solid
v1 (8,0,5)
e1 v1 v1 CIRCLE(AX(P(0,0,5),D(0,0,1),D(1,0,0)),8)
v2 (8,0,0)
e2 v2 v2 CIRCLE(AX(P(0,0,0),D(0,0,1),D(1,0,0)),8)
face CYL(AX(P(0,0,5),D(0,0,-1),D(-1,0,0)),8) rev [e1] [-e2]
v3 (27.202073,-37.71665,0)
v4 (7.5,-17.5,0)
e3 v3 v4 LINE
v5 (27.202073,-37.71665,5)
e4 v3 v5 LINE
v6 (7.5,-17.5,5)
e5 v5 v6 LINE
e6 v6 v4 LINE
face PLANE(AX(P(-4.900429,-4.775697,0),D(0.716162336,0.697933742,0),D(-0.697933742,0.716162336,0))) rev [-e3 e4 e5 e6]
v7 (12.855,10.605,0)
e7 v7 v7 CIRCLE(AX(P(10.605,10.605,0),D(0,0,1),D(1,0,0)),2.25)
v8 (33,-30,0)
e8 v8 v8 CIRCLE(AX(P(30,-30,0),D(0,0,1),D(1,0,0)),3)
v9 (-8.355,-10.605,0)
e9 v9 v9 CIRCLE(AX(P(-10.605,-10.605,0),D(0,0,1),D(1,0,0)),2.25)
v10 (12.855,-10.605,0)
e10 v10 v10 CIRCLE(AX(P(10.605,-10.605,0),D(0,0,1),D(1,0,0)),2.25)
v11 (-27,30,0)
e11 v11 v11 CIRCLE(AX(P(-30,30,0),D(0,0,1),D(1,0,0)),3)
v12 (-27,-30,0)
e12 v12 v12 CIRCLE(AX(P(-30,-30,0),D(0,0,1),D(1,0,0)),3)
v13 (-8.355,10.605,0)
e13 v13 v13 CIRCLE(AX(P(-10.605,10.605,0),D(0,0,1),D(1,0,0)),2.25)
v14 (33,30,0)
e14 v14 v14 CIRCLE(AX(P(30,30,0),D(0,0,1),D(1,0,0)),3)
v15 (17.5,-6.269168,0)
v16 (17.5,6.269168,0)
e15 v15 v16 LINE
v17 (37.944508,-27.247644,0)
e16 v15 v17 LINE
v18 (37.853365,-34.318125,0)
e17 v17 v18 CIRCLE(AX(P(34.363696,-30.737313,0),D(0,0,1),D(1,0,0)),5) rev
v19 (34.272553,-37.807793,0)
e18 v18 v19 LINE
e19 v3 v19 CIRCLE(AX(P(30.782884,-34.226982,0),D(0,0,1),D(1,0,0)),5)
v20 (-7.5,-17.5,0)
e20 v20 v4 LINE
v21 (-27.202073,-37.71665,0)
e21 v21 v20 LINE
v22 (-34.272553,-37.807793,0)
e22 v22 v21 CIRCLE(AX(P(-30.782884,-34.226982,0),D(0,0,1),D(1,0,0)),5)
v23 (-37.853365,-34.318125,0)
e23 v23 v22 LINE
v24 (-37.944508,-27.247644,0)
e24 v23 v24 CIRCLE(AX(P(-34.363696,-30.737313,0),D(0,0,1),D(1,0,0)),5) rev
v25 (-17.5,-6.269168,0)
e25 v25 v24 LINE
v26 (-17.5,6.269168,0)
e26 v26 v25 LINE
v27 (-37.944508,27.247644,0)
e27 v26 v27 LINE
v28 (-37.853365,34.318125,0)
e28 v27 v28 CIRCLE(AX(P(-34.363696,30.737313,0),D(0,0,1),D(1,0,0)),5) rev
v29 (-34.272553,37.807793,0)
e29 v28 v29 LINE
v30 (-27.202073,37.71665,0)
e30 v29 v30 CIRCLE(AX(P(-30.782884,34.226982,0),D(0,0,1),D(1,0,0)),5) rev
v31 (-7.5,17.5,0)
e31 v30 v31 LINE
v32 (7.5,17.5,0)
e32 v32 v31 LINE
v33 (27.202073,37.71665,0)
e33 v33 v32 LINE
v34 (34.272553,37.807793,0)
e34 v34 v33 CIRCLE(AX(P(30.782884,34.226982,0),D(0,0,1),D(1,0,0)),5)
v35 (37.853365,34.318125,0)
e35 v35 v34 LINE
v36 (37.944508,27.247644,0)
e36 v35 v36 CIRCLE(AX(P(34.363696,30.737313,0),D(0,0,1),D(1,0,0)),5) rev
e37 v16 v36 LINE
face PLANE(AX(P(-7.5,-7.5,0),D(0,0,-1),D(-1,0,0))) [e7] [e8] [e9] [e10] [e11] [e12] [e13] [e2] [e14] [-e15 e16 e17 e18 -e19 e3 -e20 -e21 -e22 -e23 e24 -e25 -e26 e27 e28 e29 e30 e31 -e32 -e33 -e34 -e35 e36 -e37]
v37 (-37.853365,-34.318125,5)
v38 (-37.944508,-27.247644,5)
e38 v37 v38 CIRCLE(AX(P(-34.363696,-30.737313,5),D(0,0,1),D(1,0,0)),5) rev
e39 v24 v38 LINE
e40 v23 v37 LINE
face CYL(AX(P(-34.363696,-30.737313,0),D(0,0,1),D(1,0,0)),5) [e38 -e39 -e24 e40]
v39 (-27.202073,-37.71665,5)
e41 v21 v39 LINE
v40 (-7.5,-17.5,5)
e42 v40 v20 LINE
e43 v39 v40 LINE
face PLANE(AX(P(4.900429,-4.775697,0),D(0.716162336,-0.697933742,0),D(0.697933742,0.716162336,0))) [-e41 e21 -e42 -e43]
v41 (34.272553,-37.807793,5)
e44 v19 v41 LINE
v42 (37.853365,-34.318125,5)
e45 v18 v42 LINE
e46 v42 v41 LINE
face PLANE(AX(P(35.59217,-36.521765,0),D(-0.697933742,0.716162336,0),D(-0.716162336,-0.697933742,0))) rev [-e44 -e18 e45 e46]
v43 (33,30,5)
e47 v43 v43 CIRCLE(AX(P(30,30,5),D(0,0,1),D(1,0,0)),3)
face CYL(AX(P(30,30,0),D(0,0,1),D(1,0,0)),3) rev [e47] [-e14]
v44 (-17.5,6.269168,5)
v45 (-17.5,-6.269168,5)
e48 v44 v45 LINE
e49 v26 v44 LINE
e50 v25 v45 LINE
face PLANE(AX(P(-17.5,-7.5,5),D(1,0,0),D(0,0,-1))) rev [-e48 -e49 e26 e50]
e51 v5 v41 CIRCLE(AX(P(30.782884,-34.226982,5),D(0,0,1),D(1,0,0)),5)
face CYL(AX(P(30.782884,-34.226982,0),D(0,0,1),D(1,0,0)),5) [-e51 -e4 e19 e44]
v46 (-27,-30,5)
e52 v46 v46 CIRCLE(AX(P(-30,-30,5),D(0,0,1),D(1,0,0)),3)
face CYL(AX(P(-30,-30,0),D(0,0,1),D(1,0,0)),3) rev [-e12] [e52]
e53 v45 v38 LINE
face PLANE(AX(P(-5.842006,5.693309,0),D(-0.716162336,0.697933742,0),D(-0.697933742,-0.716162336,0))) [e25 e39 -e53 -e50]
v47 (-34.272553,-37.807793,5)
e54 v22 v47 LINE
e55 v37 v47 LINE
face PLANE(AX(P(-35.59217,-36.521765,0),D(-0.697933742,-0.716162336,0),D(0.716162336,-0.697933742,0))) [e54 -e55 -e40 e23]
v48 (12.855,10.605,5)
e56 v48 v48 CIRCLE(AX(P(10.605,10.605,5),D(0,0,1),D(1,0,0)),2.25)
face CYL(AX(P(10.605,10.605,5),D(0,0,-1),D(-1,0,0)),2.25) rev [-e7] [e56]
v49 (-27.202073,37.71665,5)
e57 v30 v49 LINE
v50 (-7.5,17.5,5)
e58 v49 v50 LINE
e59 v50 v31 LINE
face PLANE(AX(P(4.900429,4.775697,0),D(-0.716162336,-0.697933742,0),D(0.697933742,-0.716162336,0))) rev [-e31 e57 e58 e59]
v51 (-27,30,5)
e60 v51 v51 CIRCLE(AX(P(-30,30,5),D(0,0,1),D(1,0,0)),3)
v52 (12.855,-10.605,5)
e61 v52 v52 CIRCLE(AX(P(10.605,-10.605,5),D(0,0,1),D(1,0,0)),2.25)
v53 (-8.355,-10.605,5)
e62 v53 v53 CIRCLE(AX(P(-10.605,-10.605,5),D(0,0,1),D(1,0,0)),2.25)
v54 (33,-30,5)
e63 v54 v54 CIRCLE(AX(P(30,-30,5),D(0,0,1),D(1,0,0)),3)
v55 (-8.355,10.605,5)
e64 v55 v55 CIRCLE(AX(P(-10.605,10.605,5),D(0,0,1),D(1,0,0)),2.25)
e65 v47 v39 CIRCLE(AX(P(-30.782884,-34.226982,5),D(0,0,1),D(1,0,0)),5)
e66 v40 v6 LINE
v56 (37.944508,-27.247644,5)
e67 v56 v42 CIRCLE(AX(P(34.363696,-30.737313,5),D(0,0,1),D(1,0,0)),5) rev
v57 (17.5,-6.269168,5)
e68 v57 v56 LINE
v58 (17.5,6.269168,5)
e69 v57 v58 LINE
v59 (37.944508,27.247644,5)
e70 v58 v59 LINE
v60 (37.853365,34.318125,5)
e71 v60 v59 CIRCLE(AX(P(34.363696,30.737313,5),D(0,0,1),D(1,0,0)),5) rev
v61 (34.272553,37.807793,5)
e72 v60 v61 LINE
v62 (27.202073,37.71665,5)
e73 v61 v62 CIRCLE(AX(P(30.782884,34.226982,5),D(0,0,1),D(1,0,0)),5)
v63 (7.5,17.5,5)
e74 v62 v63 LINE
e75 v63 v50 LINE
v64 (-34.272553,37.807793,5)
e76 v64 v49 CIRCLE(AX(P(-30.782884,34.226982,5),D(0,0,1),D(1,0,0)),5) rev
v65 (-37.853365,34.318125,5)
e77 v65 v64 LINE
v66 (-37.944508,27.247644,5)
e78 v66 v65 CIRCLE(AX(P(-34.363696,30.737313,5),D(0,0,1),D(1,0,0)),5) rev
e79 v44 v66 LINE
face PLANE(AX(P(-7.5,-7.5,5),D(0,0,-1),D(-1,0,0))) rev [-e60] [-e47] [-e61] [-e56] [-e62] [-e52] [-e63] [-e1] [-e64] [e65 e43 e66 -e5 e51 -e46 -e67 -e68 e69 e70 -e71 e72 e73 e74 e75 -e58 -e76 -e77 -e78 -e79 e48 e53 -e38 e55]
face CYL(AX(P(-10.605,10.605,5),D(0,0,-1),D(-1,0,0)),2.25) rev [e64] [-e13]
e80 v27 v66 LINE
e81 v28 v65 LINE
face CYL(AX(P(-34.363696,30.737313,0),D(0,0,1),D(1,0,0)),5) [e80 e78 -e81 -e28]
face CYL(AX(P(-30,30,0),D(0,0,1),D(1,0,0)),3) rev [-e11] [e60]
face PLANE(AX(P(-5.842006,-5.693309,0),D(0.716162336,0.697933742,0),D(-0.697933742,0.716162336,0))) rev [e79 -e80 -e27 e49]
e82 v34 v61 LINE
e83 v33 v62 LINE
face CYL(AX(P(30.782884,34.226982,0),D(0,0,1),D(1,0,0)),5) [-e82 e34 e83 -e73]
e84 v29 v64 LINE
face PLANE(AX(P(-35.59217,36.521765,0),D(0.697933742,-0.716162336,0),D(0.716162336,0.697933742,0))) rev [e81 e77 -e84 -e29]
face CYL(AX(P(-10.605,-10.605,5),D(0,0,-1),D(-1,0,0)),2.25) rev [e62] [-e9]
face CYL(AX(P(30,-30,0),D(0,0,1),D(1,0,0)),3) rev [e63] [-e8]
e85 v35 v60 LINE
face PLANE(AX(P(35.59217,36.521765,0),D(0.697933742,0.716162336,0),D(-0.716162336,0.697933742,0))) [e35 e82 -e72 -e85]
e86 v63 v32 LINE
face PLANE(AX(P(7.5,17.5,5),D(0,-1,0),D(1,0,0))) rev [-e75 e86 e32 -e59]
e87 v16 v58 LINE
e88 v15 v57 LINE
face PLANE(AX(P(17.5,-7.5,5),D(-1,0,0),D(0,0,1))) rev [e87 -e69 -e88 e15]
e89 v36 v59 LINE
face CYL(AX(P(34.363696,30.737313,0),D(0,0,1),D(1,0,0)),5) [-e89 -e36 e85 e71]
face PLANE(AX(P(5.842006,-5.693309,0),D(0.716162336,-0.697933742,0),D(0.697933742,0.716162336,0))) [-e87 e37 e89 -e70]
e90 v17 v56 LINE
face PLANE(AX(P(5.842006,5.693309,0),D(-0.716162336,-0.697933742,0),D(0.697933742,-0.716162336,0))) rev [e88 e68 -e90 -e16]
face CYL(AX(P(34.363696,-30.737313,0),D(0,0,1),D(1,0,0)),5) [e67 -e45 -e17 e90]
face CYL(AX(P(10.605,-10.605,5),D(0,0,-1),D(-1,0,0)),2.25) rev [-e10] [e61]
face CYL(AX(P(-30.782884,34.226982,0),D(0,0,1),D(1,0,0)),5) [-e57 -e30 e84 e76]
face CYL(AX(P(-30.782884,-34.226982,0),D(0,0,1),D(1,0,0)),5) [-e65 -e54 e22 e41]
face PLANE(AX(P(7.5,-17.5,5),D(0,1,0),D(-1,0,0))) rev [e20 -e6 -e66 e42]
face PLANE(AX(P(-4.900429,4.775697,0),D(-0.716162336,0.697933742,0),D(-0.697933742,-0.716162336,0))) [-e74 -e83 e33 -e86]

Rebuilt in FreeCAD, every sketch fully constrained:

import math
import FreeCAD as App
import Part
import Sketcher
from FreeCAD import Vector

doc = App.newDocument("Part")
params = doc.addObject("Spreadsheet::Sheet", "Params")
for row, (alias, value) in enumerate([
    ("sketch1_diameter", "16 mm"),
    ("sketch1_radius", "10 mm"),
    ("sketch1_diameter2", "4.5 mm"),
    ("sketch1_width", "15 mm"),
    ("pad1_length", "5 mm"),
    ("sketch2_diameter", "6 mm"),
    ("sketch2_radius", "10 mm"),
    ("sketch2_radius2", "5 mm"),
    ("sketch2_length", "5 mm"),
    ("pad2_length", "5 mm"),
], start=1):
    params.set(f"A{row}", alias)
    params.set(f"B{row}", "=" + value)
    params.setAlias(f"B{row}", alias)

body = doc.addObject("PartDesign::Body", "Body")

# Sketch on XY plane
sketch1 = body.newObject("Sketcher::SketchObject", "Sketch")
sketch1.AttachmentSupport = (doc.getObject("XY_Plane"), [""])
sketch1.MapMode = "FlatFace"
sketch1.addGeometry([
    Part.LineSegment(Vector(-7.5, -17.5, 0), Vector(7.5, -17.5, 0)),  # 0
    Part.ArcOfCircle(Part.Circle(Vector(7.5, -7.5, 0), Vector(0, 0, 1), 10), math.radians(-90), math.radians(0)),  # 1
    Part.LineSegment(Vector(17.5, -7.5, 0), Vector(17.5, 7.5, 0)),  # 2
    Part.ArcOfCircle(Part.Circle(Vector(7.5, 7.5, 0), Vector(0, 0, 1), 10), math.radians(0), math.radians(90)),  # 3
    Part.LineSegment(Vector(7.5, 17.5, 0), Vector(-7.5, 17.5, 0)),  # 4
    Part.ArcOfCircle(Part.Circle(Vector(-7.5, 7.5, 0), Vector(0, 0, 1), 10), math.radians(90), math.radians(180)),  # 5
    Part.LineSegment(Vector(-17.5, 7.5, 0), Vector(-17.5, -7.5, 0)),  # 6
    Part.ArcOfCircle(Part.Circle(Vector(-7.5, -7.5, 0), Vector(0, 0, 1), 10), math.radians(180), math.radians(270)),  # 7
    Part.Circle(Vector(10.6, -10.6, 0), Vector(0, 0, 1), 2.2),  # 8
    Part.Circle(Vector(-10.6, -10.6, 0), Vector(0, 0, 1), 2.2),  # 9
    Part.Circle(Vector(10.6, 10.6, 0), Vector(0, 0, 1), 2.2),  # 10
    Part.Circle(Vector(0, 0, 0), Vector(0, 0, 1), 8),  # 11
    Part.Circle(Vector(-10.6, 10.6, 0), Vector(0, 0, 1), 2.2),  # 12
], False)
sketch1.addConstraint([
    Sketcher.Constraint("Tangent", 0, 2, 1, 1),
    Sketcher.Constraint("Tangent", 1, 2, 2, 1),
    Sketcher.Constraint("Tangent", 2, 2, 3, 1),
    Sketcher.Constraint("Tangent", 3, 2, 4, 1),
    Sketcher.Constraint("Tangent", 4, 2, 5, 1),
    Sketcher.Constraint("Tangent", 5, 2, 6, 1),
    Sketcher.Constraint("Tangent", 6, 2, 7, 1),
    Sketcher.Constraint("Tangent", 7, 2, 0, 1),
    Sketcher.Constraint("Horizontal", 0),
    Sketcher.Constraint("Vertical", 2),
    Sketcher.Constraint("Horizontal", 4),
    Sketcher.Constraint("Vertical", 6),
    Sketcher.Constraint("Coincident", 11, 3, -1, 1),
    Sketcher.Constraint("Equal", 1, 3),
    Sketcher.Constraint("Equal", 3, 5),
    Sketcher.Constraint("Equal", 5, 7),
    Sketcher.Constraint("Equal", 8, 9),
    Sketcher.Constraint("Equal", 9, 10),
    Sketcher.Constraint("Equal", 10, 12),
    Sketcher.Constraint("Symmetric", 1, 3, 5, 3, -1, 1),
    Sketcher.Constraint("Symmetric", 9, 3, 10, 3, -1, 1),
    Sketcher.Constraint("Symmetric", 8, 3, 12, 3, -1, 1),
    Sketcher.Constraint("Symmetric", 8, 3, 9, 3, -2),
    Sketcher.Constraint("Equal", 4, 2),
    Sketcher.Constraint("Diameter", 11, 16.0),
    Sketcher.Constraint("Radius", 1, 10.0),
    Sketcher.Constraint("Diameter", 8, 4.5),
    Sketcher.Constraint("DistanceX", 0, 1, 0, 2, 15.0),
    Sketcher.Constraint("DistanceX", 9, 3, 8, 3, 21.21),
    Sketcher.Constraint("DistanceY", 8, 3, 10, 3, 21.21),
])
sketch1.setExpression("Constraints[24]", "Params.sketch1_diameter")
sketch1.setExpression("Constraints[25]", "Params.sketch1_radius")
sketch1.setExpression("Constraints[26]", "Params.sketch1_diameter2")
sketch1.setExpression("Constraints[27]", "Params.sketch1_width")
pad1 = body.newObject("PartDesign::Pad", "Pad")
pad1.Profile = sketch1
pad1.setExpression("Length", "Params.pad1_length")

# Sketch on XY plane
sketch2 = body.newObject("Sketcher::SketchObject", "Sketch001")
sketch2.AttachmentSupport = (doc.getObject("XY_Plane"), [""])
sketch2.MapMode = "FlatFace"
sketch2.addGeometry([
    Part.LineSegment(Vector(-37.9, 27.2, 0), Vector(-17.5, 6.3, 0)),  # 0
    Part.LineSegment(Vector(-17.5, 6.3, 0), Vector(-17.5, 7.5, 0)),  # 1
    Part.ArcOfCircle(Part.Circle(Vector(-7.5, 7.5, 0), Vector(0, 0, 1), 10), math.radians(90), math.radians(180)),  # 2
    Part.LineSegment(Vector(-7.5, 17.5, 0), Vector(-27.2, 37.7, 0)),  # 3
    Part.ArcOfCircle(Part.Circle(Vector(-30.8, 34.2, 0), Vector(0, 0, 1), 5), math.radians(44), math.radians(134)),  # 4
    Part.LineSegment(Vector(-34.3, 37.8, 0), Vector(-37.9, 34.3, 0)),  # 5
    Part.ArcOfCircle(Part.Circle(Vector(-34.4, 30.7, 0), Vector(0, 0, 1), 5), math.radians(134), math.radians(224)),  # 6
    Part.Circle(Vector(-30, 30, 0), Vector(0, 0, 1), 3),  # 7
    Part.ArcOfCircle(Part.Circle(Vector(34.4, 30.7, 0), Vector(0, 0, 1), 5), math.radians(-44), math.radians(46)),  # 8
    Part.LineSegment(Vector(37.9, 34.3, 0), Vector(34.3, 37.8, 0)),  # 9
    Part.ArcOfCircle(Part.Circle(Vector(30.8, 34.2, 0), Vector(0, 0, 1), 5), math.radians(46), math.radians(136)),  # 10
    Part.LineSegment(Vector(27.2, 37.7, 0), Vector(7.5, 17.5, 0)),  # 11
    Part.ArcOfCircle(Part.Circle(Vector(7.5, 7.5, 0), Vector(0, 0, 1), 10), math.radians(0), math.radians(90)),  # 12
    Part.LineSegment(Vector(17.5, 7.5, 0), Vector(17.5, 6.3, 0)),  # 13
    Part.LineSegment(Vector(17.5, 6.3, 0), Vector(37.9, 27.2, 0)),  # 14
    Part.Circle(Vector(30, 30, 0), Vector(0, 0, 1), 3),  # 15
    Part.LineSegment(Vector(37.9, -27.2, 0), Vector(17.5, -6.3, 0)),  # 16
    Part.LineSegment(Vector(17.5, -6.3, 0), Vector(17.5, -7.5, 0)),  # 17
    Part.ArcOfCircle(Part.Circle(Vector(7.5, -7.5, 0), Vector(0, 0, 1), 10), math.radians(-90), math.radians(0)),  # 18
    Part.LineSegment(Vector(7.5, -17.5, 0), Vector(27.2, -37.7, 0)),  # 19
    Part.ArcOfCircle(Part.Circle(Vector(30.8, -34.2, 0), Vector(0, 0, 1), 5), math.radians(-136), math.radians(-46)),  # 20
    Part.LineSegment(Vector(34.3, -37.8, 0), Vector(37.9, -34.3, 0)),  # 21
    Part.ArcOfCircle(Part.Circle(Vector(34.4, -30.7, 0), Vector(0, 0, 1), 5), math.radians(-46), math.radians(44)),  # 22
    Part.Circle(Vector(30, -30, 0), Vector(0, 0, 1), 3),  # 23
    Part.LineSegment(Vector(-17.5, -7.5, 0), Vector(-17.5, -6.3, 0)),  # 24
    Part.LineSegment(Vector(-17.5, -6.3, 0), Vector(-37.9, -27.2, 0)),  # 25
    Part.ArcOfCircle(Part.Circle(Vector(-34.4, -30.7, 0), Vector(0, 0, 1), 5), math.radians(136), math.radians(226)),  # 26
    Part.LineSegment(Vector(-37.9, -34.3, 0), Vector(-34.3, -37.8, 0)),  # 27
    Part.ArcOfCircle(Part.Circle(Vector(-30.8, -34.2, 0), Vector(0, 0, 1), 5), math.radians(-134), math.radians(-44)),  # 28
    Part.LineSegment(Vector(-27.2, -37.7, 0), Vector(-7.5, -17.5, 0)),  # 29
    Part.ArcOfCircle(Part.Circle(Vector(-7.5, -7.5, 0), Vector(0, 0, 1), 10), math.radians(180), math.radians(270)),  # 30
    Part.Circle(Vector(-30, -30, 0), Vector(0, 0, 1), 3),  # 31
], False)
sketch2.addConstraint([
    Sketcher.Constraint("Coincident", 0, 2, 1, 1),
    Sketcher.Constraint("Tangent", 1, 2, 2, 2),
    Sketcher.Constraint("Coincident", 2, 1, 3, 1),
    Sketcher.Constraint("Tangent", 3, 2, 4, 1),
    Sketcher.Constraint("Tangent", 4, 2, 5, 1),
    Sketcher.Constraint("Tangent", 5, 2, 6, 1),
    Sketcher.Constraint("Tangent", 6, 2, 0, 1),
    Sketcher.Constraint("Tangent", 8, 2, 9, 1),
    Sketcher.Constraint("Tangent", 9, 2, 10, 1),
    Sketcher.Constraint("Tangent", 10, 2, 11, 1),
    Sketcher.Constraint("Coincident", 11, 2, 12, 2),
    Sketcher.Constraint("Tangent", 12, 1, 13, 1),
    Sketcher.Constraint("Coincident", 13, 2, 14, 1),
    Sketcher.Constraint("Tangent", 14, 2, 8, 1),
    Sketcher.Constraint("Coincident", 16, 2, 17, 1),
    Sketcher.Constraint("Tangent", 17, 2, 18, 2),
    Sketcher.Constraint("Coincident", 18, 1, 19, 1),
    Sketcher.Constraint("Tangent", 19, 2, 20, 1),
    Sketcher.Constraint("Tangent", 20, 2, 21, 1),
    Sketcher.Constraint("Tangent", 21, 2, 22, 1),
    Sketcher.Constraint("Tangent", 22, 2, 16, 1),
    Sketcher.Constraint("Coincident", 24, 2, 25, 1),
    Sketcher.Constraint("Tangent", 25, 2, 26, 1),
    Sketcher.Constraint("Tangent", 26, 2, 27, 1),
    Sketcher.Constraint("Tangent", 27, 2, 28, 1),
    Sketcher.Constraint("Tangent", 28, 2, 29, 1),
    Sketcher.Constraint("Coincident", 29, 2, 30, 2),
    Sketcher.Constraint("Tangent", 30, 1, 24, 1),
    Sketcher.Constraint("Vertical", 1),
    Sketcher.Constraint("Vertical", 13),
    Sketcher.Constraint("Vertical", 17),
    Sketcher.Constraint("Vertical", 24),
    Sketcher.Constraint("Equal", 4, 6),
    Sketcher.Constraint("Equal", 6, 8),
    Sketcher.Constraint("Equal", 8, 10),
    Sketcher.Constraint("Equal", 2, 12),
    Sketcher.Constraint("Equal", 7, 15),
    Sketcher.Constraint("Equal", 12, 18),
    Sketcher.Constraint("Equal", 10, 20),
    Sketcher.Constraint("Equal", 20, 22),
    Sketcher.Constraint("Equal", 15, 23),
    Sketcher.Constraint("Equal", 22, 26),
    Sketcher.Constraint("Equal", 26, 28),
    Sketcher.Constraint("Equal", 18, 30),
    Sketcher.Constraint("Equal", 23, 31),
    Sketcher.Constraint("Symmetric", 2, 3, 18, 3, -1, 1),
    Sketcher.Constraint("Symmetric", 4, 3, 20, 3, -1, 1),
    Sketcher.Constraint("Symmetric", 6, 3, 22, 3, -1, 1),
    Sketcher.Constraint("Symmetric", 7, 3, 23, 3, -1, 1),
    Sketcher.Constraint("Symmetric", 8, 3, 26, 3, -1, 1),
    Sketcher.Constraint("Symmetric", 10, 3, 28, 3, -1, 1),
    Sketcher.Constraint("Symmetric", 12, 3, 30, 3, -1, 1),
    Sketcher.Constraint("Symmetric", 15, 3, 31, 3, -1, 1),
    Sketcher.Constraint("Symmetric", 6, 3, 8, 3, -2),
    Sketcher.Constraint("Symmetric", 4, 3, 10, 3, -2),
    Sketcher.Constraint("Symmetric", 2, 3, 12, 3, -2),
    Sketcher.Constraint("Symmetric", 7, 3, 15, 3, -2),
    Sketcher.Constraint("Parallel", 0, 3),
    Sketcher.Constraint("Perpendicular", 3, 5),
    Sketcher.Constraint("Perpendicular", 9, 11),
    Sketcher.Constraint("Parallel", 11, 14),
    Sketcher.Constraint("Perpendicular", 5, 16),
    Sketcher.Constraint("Parallel", 16, 19),
    Sketcher.Constraint("Parallel", 14, 25),
    Sketcher.Constraint("Perpendicular", 27, 29),
    Sketcher.Constraint("Vertical", 30, 3, 2, 1),
    Sketcher.Constraint("Diameter", 7, 6.0),
    Sketcher.Constraint("Radius", 2, 10.0),
    Sketcher.Constraint("Radius", 4, 5.0),
    Sketcher.Constraint("Distance", 5, 5.0),
    Sketcher.Constraint("DistanceX", 7, 3, -1, 1, 30.0),
    Sketcher.Constraint("DistanceY", -1, 1, 7, 3, 30.0),
    Sketcher.Constraint("DistanceX", 2, 3, 12, 3, 15.0),
    Sketcher.Constraint("DistanceY", 18, 3, 12, 3, 15.0),
    Sketcher.Constraint("DistanceY", 1, 1, 1, 2, 1.230832),
    Sketcher.Constraint("DistanceY", -1, 1, 4, 3, 34.226982),
])
sketch2.setExpression("Constraints[66]", "Params.sketch2_diameter")
sketch2.setExpression("Constraints[67]", "Params.sketch2_radius")
sketch2.setExpression("Constraints[68]", "Params.sketch2_radius2")
sketch2.setExpression("Constraints[69]", "Params.sketch2_length")
pad2 = body.newObject("PartDesign::Pad", "Pad001")
pad2.Profile = sketch2
pad2.setExpression("Length", "Params.pad2_length")

doc.recompute()
